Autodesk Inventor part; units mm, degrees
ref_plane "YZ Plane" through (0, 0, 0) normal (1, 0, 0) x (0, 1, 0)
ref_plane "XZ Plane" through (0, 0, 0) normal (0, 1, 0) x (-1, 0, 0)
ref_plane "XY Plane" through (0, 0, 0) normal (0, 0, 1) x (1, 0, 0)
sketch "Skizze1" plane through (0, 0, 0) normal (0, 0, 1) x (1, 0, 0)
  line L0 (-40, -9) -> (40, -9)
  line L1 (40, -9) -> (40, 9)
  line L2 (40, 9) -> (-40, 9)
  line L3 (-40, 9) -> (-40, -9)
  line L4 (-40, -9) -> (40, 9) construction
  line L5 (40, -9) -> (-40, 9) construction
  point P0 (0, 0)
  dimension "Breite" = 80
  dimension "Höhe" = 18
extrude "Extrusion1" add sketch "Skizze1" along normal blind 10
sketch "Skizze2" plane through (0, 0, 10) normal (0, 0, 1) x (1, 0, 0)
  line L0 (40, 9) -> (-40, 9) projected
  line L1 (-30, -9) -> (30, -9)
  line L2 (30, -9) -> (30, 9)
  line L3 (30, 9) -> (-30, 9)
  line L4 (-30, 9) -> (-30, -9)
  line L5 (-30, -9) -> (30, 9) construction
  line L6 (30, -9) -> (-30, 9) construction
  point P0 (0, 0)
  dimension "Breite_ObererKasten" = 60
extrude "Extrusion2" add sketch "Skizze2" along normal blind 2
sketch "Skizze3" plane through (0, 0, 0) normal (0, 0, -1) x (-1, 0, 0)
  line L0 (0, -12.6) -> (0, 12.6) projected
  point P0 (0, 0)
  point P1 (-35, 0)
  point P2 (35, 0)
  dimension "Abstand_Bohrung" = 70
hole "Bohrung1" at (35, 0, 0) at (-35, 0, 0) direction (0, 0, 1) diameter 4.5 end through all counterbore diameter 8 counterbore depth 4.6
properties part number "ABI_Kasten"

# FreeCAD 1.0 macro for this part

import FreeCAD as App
import Part
import Sketcher
Q = App.Units.Quantity

doc = App.newDocument("Part")
body = doc.addObject("PartDesign::Body", "Body")

# Sketch on XY plane
sketch1 = body.newObject("Sketcher::SketchObject", "Sketch")
sketch1.AttachmentSupport = (doc.getObject("XY_Plane"), [""])
sketch1.MapMode = "FlatFace"
sketch1.addGeometry(Part.LineSegment(App.Vector(-40, 9, 0), App.Vector(-40, -9, 0)), False)
sketch1.addGeometry(Part.LineSegment(App.Vector(-40, -9, 0), App.Vector(40, -9, 0)), False)
sketch1.addGeometry(Part.LineSegment(App.Vector(40, -9, 0), App.Vector(40, 9, 0)), False)
sketch1.addGeometry(Part.LineSegment(App.Vector(40, 9, 0), App.Vector(-40, 9, 0)), False)
sketch1.addConstraint(Sketcher.Constraint("Coincident", 0, 2, 1, 1))
sketch1.addConstraint(Sketcher.Constraint("Coincident", 1, 2, 2, 1))
sketch1.addConstraint(Sketcher.Constraint("Coincident", 2, 2, 3, 1))
sketch1.addConstraint(Sketcher.Constraint("Coincident", 3, 2, 0, 1))
sketch1.addConstraint(Sketcher.Constraint("Vertical", 0))
sketch1.addConstraint(Sketcher.Constraint("Horizontal", 1))
sketch1.addConstraint(Sketcher.Constraint("Vertical", 2))
sketch1.addConstraint(Sketcher.Constraint("Horizontal", 3))
sketch1.addConstraint(Sketcher.Constraint("Symmetric", 0, 2, 2, 2, -1, 1))
sketch1.addConstraint(Sketcher.Constraint("DistanceX", 1, 1, 1, 2, Q("80 mm")))
sketch1.addConstraint(Sketcher.Constraint("DistanceY", 0, 2, 0, 1, Q("18 mm")))
pad1 = body.newObject("PartDesign::Pad", "Pad")
pad1.Profile = sketch1
pad1.Length = 10

# Sketch on XY plane
sketch2 = body.newObject("Sketcher::SketchObject", "Sketch001")
sketch2.AttachmentSupport = (doc.getObject("XY_Plane"), [""])
sketch2.MapMode = "FlatFace"
sketch2.AttachmentOffset = App.Placement(App.Vector(0, 0, 10), App.Rotation())
sketch2.addGeometry(Part.LineSegment(App.Vector(30, -9, 0), App.Vector(30, 9, 0)), False)
sketch2.addGeometry(Part.LineSegment(App.Vector(30, 9, 0), App.Vector(-30, 9, 0)), False)
sketch2.addGeometry(Part.LineSegment(App.Vector(-30, 9, 0), App.Vector(-30, -9, 0)), False)
sketch2.addGeometry(Part.LineSegment(App.Vector(-30, -9, 0), App.Vector(30, -9, 0)), False)
sketch2.addConstraint(Sketcher.Constraint("Coincident", 0, 2, 1, 1))
sketch2.addConstraint(Sketcher.Constraint("Coincident", 1, 2, 2, 1))
sketch2.addConstraint(Sketcher.Constraint("Coincident", 2, 2, 3, 1))
sketch2.addConstraint(Sketcher.Constraint("Coincident", 3, 2, 0, 1))
sketch2.addConstraint(Sketcher.Constraint("Vertical", 0))
sketch2.addConstraint(Sketcher.Constraint("Horizontal", 1))
sketch2.addConstraint(Sketcher.Constraint("Vertical", 2))
sketch2.addConstraint(Sketcher.Constraint("Horizontal", 3))
sketch2.addConstraint(Sketcher.Constraint("Symmetric", 0, 2, 2, 2, -1, 1))
sketch2.addConstraint(Sketcher.Constraint("DistanceX", 1, 2, 1, 1, Q("60 mm")))
sketch2.addConstraint(Sketcher.Constraint("DistanceY", 0, 1, 0, 2, Q("18 mm")))
pad2 = body.newObject("PartDesign::Pad", "Pad001")
pad2.Profile = sketch2
pad2.Length = 2

# Sketch on XY plane
sketch3 = body.newObject("Sketcher::SketchObject", "Sketch002")
sketch3.AttachmentSupport = (doc.getObject("XY_Plane"), [""])
sketch3.MapMode = "FlatFace"
sketch3.addGeometry(Part.Circle(App.Vector(35, 0, 0), App.Vector(0, 0, 1), 2.2), False)
sketch3.addGeometry(Part.Circle(App.Vector(-35, 0, 0), App.Vector(0, 0, 1), 2.2), False)
sketch3.addConstraint(Sketcher.Constraint("Equal", 0, 1))
sketch3.addConstraint(Sketcher.Constraint("Symmetric", 0, 3, 1, 3, -1, 1))
sketch3.addConstraint(Sketcher.Constraint("PointOnObject", 0, 3, -1))
sketch3.addConstraint(Sketcher.Constraint("Diameter", 0, Q("4.5 mm")))
sketch3.addConstraint(Sketcher.Constraint("DistanceX", -1, 1, 0, 3, Q("35 mm")))
doc.recompute()
hole = body.newObject("PartDesign::Hole", "Hole")
hole.Profile = sketch3
hole.ThreadType = "None"
hole.Diameter = 4.5
hole.DepthType = "ThroughAll"
hole.HoleCutType = "Counterbore"
hole.HoleCutDiameter = 8
hole.HoleCutDepth = 4.6
hole.Reversed = True

doc.recompute()
